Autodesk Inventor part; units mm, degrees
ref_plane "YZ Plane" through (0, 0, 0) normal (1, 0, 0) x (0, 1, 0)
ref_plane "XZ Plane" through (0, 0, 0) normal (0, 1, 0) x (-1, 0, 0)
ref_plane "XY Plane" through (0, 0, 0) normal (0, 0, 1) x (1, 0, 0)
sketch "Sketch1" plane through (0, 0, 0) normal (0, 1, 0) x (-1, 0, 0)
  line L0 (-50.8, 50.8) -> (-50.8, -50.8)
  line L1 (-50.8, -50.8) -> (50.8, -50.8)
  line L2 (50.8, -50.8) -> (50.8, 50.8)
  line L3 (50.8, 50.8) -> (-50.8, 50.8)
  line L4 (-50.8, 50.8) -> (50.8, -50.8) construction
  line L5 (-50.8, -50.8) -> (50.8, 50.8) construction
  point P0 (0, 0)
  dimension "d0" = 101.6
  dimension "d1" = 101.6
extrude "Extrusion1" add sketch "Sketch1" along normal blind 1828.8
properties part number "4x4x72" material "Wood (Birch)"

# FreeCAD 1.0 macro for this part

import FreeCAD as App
import Part
import Sketcher
Q = App.Units.Quantity

doc = App.newDocument("Part")
body = doc.addObject("PartDesign::Body", "Body")

# Sketch on XZ plane
sketch1 = doc.addObject("Sketcher::SketchObject", "Sketch")
body.addObject(sketch1)
sketch1.AttachmentSupport = (doc.XZ_Plane, [""])
sketch1.MapMode = "FlatFace"
sketch1.addGeometry([
    Part.LineSegment(App.Vector(-51, 51, 0), App.Vector(51, 51, 0)),
    Part.LineSegment(App.Vector(51, 51, 0), App.Vector(51, -51, 0)),
    Part.LineSegment(App.Vector(51, -51, 0), App.Vector(-51, -51, 0)),
    Part.LineSegment(App.Vector(-51, -51, 0), App.Vector(-51, 51, 0)),
], False)
sketch1.addConstraint([
    Sketcher.Constraint("Coincident", 0, 2, 1, 1),
    Sketcher.Constraint("Coincident", 1, 2, 2, 1),
    Sketcher.Constraint("Coincident", 2, 2, 3, 1),
    Sketcher.Constraint("Coincident", 3, 2, 0, 1),
    Sketcher.Constraint("Horizontal", 0),
    Sketcher.Constraint("Vertical", 1),
    Sketcher.Constraint("Horizontal", 2),
    Sketcher.Constraint("Vertical", 3),
    Sketcher.Constraint("Symmetric", 0, 2, 2, 2, -1, 1),
    Sketcher.Constraint("Equal", 2, 1),
    Sketcher.Constraint("DistanceX", 0, 1, 0, 2, Q("4 in")),
])
pad1 = doc.addObject("PartDesign::Pad", "Pad")
body.addObject(pad1)
pad1.Profile = sketch1
pad1.Length = Q("72 in")
pad1.Reversed = True

doc.recompute()
